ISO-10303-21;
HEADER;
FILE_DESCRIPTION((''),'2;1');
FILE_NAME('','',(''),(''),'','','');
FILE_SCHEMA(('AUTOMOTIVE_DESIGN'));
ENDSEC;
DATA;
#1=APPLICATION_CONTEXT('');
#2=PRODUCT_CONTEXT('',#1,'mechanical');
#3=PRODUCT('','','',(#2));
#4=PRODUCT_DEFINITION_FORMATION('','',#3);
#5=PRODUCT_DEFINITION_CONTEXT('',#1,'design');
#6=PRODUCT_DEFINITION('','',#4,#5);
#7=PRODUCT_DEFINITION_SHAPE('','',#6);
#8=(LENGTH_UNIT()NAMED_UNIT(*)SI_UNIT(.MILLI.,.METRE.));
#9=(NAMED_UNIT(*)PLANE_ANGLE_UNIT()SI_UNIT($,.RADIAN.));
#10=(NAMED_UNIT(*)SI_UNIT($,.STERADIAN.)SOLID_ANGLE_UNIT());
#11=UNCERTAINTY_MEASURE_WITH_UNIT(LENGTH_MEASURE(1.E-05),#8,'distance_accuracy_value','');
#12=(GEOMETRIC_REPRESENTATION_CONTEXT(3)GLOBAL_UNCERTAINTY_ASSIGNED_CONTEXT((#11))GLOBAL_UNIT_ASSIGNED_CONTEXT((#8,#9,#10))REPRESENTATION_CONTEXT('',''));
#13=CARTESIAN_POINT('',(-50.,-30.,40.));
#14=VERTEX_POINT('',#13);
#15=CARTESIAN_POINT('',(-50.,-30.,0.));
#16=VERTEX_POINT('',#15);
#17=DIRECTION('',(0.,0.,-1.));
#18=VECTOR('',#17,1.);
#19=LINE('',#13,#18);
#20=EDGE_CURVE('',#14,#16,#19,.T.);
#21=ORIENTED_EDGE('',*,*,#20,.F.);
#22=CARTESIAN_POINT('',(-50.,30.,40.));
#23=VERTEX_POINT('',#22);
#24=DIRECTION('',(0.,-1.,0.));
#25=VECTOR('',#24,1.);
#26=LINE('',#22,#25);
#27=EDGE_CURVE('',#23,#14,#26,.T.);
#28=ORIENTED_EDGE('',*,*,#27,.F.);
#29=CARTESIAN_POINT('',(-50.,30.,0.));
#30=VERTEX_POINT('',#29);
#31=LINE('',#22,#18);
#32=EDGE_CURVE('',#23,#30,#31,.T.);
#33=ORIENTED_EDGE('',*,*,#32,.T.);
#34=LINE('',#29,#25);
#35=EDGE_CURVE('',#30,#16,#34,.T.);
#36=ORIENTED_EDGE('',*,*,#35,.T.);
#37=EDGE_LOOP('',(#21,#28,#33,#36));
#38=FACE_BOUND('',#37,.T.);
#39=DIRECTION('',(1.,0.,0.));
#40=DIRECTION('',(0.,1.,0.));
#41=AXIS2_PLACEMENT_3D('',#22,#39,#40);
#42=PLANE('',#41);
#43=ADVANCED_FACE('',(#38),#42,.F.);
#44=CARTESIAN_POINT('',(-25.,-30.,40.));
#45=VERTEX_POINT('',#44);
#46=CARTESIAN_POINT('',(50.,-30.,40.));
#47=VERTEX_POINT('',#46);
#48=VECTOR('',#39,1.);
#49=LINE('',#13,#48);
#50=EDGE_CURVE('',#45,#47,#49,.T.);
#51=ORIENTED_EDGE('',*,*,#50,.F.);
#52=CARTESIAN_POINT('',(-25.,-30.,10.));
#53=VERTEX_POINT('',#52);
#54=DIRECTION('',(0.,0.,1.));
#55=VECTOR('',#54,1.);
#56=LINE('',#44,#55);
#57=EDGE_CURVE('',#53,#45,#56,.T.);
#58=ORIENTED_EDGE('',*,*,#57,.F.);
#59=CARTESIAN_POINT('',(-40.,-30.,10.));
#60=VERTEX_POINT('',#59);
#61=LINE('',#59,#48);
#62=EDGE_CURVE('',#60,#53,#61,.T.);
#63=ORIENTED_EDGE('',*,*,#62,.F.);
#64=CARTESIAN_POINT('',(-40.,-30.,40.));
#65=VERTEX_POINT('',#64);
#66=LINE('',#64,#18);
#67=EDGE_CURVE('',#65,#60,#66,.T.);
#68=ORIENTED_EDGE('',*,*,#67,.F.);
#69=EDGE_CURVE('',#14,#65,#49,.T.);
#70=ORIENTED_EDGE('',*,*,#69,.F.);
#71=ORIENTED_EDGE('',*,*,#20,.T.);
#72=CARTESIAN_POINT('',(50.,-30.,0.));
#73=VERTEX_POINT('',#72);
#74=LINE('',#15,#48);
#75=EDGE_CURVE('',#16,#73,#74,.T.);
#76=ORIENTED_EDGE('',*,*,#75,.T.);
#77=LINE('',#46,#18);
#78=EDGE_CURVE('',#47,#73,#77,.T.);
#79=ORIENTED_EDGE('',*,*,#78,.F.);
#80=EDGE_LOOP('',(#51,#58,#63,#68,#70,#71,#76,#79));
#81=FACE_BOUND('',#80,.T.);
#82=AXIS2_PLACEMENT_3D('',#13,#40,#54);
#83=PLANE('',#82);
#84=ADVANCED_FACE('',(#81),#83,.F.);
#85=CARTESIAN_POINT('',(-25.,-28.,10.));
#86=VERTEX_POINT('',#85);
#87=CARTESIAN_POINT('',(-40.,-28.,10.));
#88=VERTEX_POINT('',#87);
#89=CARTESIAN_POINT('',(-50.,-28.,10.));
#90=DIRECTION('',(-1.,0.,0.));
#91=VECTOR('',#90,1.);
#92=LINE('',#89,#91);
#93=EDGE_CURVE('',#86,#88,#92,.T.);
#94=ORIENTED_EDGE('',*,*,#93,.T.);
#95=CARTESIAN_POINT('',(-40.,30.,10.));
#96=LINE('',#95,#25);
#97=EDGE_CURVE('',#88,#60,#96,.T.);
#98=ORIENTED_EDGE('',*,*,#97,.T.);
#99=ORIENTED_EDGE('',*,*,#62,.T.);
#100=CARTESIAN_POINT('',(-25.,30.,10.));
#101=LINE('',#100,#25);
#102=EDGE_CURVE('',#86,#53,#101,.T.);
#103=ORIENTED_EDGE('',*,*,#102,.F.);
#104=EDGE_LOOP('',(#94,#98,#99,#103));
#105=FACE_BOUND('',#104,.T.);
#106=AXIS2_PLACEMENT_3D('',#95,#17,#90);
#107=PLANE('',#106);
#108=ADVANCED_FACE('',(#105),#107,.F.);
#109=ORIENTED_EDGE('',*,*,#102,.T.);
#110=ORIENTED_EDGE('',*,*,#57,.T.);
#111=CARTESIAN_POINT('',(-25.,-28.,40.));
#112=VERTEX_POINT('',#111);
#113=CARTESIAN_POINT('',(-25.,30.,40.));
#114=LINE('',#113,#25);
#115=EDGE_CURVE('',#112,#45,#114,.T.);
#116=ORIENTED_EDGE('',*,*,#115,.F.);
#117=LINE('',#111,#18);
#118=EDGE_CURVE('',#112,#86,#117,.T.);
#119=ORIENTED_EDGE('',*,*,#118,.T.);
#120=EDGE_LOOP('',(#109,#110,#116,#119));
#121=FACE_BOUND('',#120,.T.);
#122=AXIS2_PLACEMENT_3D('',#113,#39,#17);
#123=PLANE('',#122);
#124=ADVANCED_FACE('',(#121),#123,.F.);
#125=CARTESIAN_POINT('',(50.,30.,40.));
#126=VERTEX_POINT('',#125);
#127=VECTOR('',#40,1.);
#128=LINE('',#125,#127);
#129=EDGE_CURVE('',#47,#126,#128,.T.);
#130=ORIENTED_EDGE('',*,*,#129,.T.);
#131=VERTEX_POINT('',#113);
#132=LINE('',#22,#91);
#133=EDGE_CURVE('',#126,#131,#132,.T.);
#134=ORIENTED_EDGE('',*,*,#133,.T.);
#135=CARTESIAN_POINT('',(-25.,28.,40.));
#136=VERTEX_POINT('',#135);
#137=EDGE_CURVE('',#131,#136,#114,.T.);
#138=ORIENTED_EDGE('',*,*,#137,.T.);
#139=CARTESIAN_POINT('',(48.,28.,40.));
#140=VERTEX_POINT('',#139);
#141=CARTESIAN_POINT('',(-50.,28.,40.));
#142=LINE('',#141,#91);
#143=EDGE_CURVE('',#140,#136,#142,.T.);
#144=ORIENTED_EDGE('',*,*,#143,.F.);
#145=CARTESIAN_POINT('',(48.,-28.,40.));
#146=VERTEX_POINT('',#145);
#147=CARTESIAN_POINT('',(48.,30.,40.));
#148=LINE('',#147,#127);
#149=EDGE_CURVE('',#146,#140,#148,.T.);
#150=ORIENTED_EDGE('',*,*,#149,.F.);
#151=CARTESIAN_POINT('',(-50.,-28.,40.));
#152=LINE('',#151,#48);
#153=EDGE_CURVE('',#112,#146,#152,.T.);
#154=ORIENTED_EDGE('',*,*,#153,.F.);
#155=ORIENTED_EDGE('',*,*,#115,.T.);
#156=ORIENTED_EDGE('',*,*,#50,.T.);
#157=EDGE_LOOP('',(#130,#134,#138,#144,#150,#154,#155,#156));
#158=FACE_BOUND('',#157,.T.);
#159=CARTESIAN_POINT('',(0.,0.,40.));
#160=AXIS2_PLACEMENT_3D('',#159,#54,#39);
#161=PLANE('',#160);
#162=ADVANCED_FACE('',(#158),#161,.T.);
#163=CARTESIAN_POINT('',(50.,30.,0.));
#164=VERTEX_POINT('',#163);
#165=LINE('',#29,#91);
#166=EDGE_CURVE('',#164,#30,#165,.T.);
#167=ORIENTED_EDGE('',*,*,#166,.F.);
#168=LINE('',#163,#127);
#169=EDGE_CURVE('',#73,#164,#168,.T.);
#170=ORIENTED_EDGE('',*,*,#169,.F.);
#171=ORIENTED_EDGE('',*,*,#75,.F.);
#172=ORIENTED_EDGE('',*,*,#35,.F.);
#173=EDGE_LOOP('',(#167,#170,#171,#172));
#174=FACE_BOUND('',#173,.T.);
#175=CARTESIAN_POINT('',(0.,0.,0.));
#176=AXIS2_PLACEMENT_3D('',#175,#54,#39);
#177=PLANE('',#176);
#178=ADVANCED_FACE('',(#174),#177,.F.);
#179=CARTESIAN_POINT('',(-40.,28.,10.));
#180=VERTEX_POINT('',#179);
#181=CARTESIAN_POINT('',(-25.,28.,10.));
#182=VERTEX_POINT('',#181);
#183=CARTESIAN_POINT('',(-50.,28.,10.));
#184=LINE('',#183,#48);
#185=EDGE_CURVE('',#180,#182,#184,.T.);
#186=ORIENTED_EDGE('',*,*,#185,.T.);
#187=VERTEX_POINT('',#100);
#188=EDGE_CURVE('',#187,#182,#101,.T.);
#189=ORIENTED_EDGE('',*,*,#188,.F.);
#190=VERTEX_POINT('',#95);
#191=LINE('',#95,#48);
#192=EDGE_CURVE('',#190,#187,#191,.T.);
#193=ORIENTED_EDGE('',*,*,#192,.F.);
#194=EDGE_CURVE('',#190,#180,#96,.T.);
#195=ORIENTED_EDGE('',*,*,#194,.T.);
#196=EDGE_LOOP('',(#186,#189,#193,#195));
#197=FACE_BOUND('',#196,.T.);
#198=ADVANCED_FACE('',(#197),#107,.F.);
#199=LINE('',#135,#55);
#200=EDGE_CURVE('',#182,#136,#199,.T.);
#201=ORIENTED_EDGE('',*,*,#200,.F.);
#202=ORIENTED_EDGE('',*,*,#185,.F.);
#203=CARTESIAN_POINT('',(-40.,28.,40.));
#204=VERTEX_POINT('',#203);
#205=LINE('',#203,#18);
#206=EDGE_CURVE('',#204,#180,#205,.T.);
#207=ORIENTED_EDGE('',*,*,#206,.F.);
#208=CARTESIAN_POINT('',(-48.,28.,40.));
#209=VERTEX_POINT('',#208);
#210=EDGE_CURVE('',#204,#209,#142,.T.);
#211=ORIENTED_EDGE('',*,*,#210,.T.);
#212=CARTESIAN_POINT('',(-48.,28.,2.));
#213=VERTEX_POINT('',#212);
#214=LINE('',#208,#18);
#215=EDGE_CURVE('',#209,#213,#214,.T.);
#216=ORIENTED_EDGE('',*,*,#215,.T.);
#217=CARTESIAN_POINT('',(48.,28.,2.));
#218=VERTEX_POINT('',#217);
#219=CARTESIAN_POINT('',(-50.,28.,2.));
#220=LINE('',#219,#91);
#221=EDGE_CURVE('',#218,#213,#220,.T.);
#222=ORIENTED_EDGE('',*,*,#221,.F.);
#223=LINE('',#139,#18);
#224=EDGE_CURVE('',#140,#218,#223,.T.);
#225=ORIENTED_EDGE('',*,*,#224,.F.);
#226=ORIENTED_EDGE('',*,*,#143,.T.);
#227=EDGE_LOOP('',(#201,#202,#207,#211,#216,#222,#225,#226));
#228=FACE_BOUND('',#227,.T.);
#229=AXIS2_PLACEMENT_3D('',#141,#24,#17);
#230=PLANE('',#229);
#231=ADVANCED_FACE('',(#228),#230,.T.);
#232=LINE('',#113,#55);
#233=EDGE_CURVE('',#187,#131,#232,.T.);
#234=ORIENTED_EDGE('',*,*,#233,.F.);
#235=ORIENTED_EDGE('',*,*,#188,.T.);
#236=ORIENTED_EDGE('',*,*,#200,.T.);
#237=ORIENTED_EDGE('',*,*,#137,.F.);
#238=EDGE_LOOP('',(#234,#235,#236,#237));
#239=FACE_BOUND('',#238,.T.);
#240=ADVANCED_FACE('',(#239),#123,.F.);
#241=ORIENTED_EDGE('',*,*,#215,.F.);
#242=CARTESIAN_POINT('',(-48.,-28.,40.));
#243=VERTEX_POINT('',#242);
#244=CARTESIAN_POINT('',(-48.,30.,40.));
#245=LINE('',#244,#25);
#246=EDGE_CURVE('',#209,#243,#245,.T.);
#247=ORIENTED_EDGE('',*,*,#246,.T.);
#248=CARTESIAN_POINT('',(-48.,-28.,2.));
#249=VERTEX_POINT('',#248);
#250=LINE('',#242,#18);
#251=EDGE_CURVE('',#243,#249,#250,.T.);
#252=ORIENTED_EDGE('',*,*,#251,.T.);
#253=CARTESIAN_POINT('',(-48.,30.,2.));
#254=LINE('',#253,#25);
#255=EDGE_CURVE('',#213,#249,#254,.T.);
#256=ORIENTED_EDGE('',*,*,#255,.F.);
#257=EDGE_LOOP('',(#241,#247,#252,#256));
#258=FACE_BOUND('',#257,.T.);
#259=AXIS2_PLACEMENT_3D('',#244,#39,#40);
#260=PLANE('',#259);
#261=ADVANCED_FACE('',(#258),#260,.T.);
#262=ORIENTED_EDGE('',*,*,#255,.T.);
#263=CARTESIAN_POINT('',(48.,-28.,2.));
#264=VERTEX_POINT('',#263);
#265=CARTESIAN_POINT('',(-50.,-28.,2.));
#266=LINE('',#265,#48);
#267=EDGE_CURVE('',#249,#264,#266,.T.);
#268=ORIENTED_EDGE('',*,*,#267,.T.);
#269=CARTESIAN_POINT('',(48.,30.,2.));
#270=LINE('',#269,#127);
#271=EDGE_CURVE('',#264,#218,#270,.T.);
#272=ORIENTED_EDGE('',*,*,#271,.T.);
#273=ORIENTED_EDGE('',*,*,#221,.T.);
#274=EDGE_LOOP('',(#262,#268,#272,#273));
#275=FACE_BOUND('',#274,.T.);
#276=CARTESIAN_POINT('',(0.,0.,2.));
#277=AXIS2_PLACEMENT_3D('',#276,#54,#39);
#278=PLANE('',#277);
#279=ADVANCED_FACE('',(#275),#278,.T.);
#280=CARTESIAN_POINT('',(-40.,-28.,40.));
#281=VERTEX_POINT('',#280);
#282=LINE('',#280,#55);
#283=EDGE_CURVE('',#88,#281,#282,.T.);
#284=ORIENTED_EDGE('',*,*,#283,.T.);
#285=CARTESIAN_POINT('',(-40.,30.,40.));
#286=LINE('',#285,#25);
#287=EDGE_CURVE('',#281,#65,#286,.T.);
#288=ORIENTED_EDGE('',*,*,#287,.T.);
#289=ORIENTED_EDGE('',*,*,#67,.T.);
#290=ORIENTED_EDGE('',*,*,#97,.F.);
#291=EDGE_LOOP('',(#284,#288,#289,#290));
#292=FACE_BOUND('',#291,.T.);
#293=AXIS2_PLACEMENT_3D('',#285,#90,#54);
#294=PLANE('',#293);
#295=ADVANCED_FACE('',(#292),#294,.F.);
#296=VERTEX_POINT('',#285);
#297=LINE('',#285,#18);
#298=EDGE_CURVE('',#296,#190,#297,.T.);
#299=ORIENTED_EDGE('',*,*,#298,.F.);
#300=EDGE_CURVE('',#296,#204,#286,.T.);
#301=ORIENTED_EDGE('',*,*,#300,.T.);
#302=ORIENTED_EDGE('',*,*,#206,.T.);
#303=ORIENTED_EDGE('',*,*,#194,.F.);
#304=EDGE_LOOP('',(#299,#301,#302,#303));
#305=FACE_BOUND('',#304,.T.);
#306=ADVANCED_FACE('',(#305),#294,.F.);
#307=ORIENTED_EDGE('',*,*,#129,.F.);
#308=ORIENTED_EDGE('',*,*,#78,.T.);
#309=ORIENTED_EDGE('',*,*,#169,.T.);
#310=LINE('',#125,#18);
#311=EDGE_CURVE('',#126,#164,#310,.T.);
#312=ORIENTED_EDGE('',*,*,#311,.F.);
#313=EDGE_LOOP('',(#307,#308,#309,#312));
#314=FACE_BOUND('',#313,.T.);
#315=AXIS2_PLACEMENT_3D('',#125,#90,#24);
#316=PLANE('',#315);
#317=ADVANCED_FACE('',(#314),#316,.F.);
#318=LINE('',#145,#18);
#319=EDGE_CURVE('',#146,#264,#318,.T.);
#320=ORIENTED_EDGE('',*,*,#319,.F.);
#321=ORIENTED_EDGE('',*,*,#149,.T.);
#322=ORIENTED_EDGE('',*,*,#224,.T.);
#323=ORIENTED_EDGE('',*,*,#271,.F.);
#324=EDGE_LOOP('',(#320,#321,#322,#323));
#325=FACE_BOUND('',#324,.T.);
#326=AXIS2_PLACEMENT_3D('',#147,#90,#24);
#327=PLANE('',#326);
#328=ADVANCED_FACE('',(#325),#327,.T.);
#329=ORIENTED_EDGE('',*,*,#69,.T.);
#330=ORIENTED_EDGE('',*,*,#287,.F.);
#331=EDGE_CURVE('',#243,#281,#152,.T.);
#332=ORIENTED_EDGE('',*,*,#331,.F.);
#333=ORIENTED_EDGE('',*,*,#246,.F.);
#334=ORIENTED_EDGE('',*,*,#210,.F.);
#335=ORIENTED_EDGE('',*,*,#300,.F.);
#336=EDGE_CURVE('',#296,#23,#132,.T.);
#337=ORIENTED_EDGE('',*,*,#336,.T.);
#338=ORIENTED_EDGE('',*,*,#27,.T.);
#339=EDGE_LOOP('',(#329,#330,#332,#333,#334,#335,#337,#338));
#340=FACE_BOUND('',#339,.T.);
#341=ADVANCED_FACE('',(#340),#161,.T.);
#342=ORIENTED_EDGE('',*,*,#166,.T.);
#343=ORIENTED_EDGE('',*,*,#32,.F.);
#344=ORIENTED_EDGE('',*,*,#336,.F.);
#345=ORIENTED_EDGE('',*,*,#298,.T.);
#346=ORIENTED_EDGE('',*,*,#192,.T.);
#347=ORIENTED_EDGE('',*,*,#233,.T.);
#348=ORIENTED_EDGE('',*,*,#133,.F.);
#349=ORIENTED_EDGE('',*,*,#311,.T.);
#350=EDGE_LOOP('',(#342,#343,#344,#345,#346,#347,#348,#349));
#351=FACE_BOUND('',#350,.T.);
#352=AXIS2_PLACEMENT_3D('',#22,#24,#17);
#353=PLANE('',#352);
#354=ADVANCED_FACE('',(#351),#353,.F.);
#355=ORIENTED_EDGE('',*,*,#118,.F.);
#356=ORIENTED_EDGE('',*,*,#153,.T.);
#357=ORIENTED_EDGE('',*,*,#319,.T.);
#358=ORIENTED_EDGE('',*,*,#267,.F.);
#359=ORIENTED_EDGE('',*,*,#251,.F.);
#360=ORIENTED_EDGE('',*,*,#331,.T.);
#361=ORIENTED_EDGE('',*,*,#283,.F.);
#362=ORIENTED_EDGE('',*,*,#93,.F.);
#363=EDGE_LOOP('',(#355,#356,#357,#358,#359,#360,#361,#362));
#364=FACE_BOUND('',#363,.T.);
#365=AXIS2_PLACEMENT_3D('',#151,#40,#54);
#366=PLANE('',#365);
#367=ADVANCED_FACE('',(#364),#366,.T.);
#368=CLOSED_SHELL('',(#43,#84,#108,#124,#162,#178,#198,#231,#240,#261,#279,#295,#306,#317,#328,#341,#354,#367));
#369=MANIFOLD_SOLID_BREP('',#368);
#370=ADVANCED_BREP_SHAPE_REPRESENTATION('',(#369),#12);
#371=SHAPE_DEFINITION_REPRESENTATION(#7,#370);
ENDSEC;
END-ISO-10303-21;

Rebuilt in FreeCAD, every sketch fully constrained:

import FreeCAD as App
import Part
import Sketcher
from FreeCAD import Vector
Q = App.Units.Quantity


def faces_at(feature, points):
    """Names of the faces that lie closest to the given points."""
    faces = feature.Shape.Faces
    near = lambda p: min(range(len(faces)), key=lambda i: faces[i].distToShape(Part.Vertex(*p))[0])
    return sorted({f"Face{near(p) + 1}" for p in points})


def add_polygon(sketch, points):
    """Adds a closed chain of lines whose ends are joined by coincident constraints."""
    first, n = sketch.GeometryCount, len(points)
    for a, b in zip(points, points[1:] + points[:1]):
        sketch.addGeometry(Part.LineSegment(App.Vector(*a, 0), App.Vector(*b, 0)), False)
    for i in range(n):
        sketch.addConstraint(Sketcher.Constraint("Coincident", first + i, 2, first + (i + 1) % n, 1))

doc = App.newDocument("Part")
body = doc.addObject("PartDesign::Body", "Body")

sketch1 = body.newObject("Sketcher::SketchObject", "Sketch")
sketch1.AttachmentSupport = (doc.getObject("XY_Plane"), [""])
sketch1.MapMode = "FlatFace"
add_polygon(sketch1, [(-50, 30), (-50, -30), (50, -30), (50, 30)])
sketch1.addConstraint([
    Sketcher.Constraint("Vertical", 0),
    Sketcher.Constraint("Horizontal", 1),
    Sketcher.Constraint("Vertical", 2),
    Sketcher.Constraint("Horizontal", 3),
    Sketcher.Constraint("Symmetric", 0, 2, 2, 2, -1, 1),
    Sketcher.Constraint("DistanceX", 1, 1, 1, 2, Q("100 mm")),
    Sketcher.Constraint("DistanceY", 0, 2, 0, 1, Q("60 mm")),
])
pad1 = body.newObject("PartDesign::Pad", "Pad")
pad1.Profile = sketch1
pad1.Length = 40
doc.recompute()

thickness = body.newObject("PartDesign::Thickness", "Thickness")
thickness.Base = (pad1, faces_at(pad1, [(0, 0, 40)]))
thickness.Value = 2
thickness.Reversed = True
thickness.Join = "Intersection"

sketch2 = body.newObject("Sketcher::SketchObject", "Sketch001")
sketch2.AttachmentSupport = (doc.getObject("XZ_Plane"), [""])
sketch2.MapMode = "FlatFace"
sketch2.AttachmentOffset = App.Placement(Vector(0, 0, 30), App.Rotation())
add_polygon(sketch2, [(-40, 40), (-40, 10), (-25, 10), (-25, 40)])
sketch2.addConstraint([
    Sketcher.Constraint("Vertical", 0),
    Sketcher.Constraint("Horizontal", 1),
    Sketcher.Constraint("Vertical", 2),
    Sketcher.Constraint("Horizontal", 3),
    Sketcher.Constraint("DistanceX", 1, 1, 1, 2, Q("15 mm")),
    Sketcher.Constraint("DistanceY", 0, 2, 0, 1, Q("30 mm")),
    Sketcher.Constraint("DistanceX", 0, 2, -1, 1, Q("40 mm")),
    Sketcher.Constraint("DistanceY", -1, 1, 0, 2, Q("10 mm")),
])
pocket1 = body.newObject("PartDesign::Pocket", "Pocket")
pocket1.Profile = sketch2
pocket1.Length = 60

doc.recompute()
